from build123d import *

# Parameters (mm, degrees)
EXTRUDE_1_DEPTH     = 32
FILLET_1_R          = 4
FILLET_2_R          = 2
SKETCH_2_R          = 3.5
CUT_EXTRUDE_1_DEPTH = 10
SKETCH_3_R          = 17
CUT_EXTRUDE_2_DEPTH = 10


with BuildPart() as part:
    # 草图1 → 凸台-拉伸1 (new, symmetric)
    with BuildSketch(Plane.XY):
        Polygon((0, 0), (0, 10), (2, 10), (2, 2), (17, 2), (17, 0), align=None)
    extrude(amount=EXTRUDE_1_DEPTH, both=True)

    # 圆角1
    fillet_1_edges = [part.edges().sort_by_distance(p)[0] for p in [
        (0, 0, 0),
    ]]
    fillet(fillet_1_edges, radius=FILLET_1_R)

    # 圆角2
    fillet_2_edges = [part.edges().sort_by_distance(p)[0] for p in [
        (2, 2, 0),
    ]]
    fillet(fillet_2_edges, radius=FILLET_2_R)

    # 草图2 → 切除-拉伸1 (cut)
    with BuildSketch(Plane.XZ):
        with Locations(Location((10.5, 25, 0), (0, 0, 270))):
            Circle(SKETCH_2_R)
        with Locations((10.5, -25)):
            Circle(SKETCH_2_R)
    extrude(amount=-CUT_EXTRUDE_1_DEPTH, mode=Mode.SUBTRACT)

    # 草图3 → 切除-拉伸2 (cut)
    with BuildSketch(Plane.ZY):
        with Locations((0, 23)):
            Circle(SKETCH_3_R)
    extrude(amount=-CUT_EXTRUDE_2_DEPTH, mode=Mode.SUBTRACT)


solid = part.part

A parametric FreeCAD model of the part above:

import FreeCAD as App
import Part
import Sketcher
from FreeCAD import Vector


def edges_at(feature, points):
    """Names of the edges that pass closest to the given points."""
    edges = feature.Shape.Edges
    near = lambda p: min(range(len(edges)), key=lambda i: edges[i].distToShape(Part.Vertex(*p))[0])
    return sorted({f"Edge{near(p) + 1}" for p in points})

doc = App.newDocument("Part")
body = doc.addObject("PartDesign::Body", "Body")

sketch1 = doc.addObject("Sketcher::SketchObject", "Sketch")
body.addObject(sketch1)
sketch1.AttachmentSupport = (doc.XY_Plane, [""])
sketch1.MapMode = "FlatFace"
sketch1.addGeometry([
    Part.LineSegment(Vector(0, 10, 0), Vector(0, 0, 0)),
    Part.LineSegment(Vector(0, 0, 0), Vector(17, 0, 0)),
    Part.LineSegment(Vector(17, 0, 0), Vector(17, 2, 0)),
    Part.LineSegment(Vector(17, 2, 0), Vector(2, 2, 0)),
    Part.LineSegment(Vector(2, 2, 0), Vector(2, 10, 0)),
    Part.LineSegment(Vector(2, 10, 0), Vector(0, 10, 0)),
], False)
sketch1.addConstraint([
    Sketcher.Constraint("Coincident", 0, 2, 1, 1),
    Sketcher.Constraint("Coincident", 1, 2, 2, 1),
    Sketcher.Constraint("Coincident", 2, 2, 3, 1),
    Sketcher.Constraint("Coincident", 3, 2, 4, 1),
    Sketcher.Constraint("Coincident", 4, 2, 5, 1),
    Sketcher.Constraint("Coincident", 5, 2, 0, 1),
    Sketcher.Constraint("Vertical", 0),
    Sketcher.Constraint("Horizontal", 1),
    Sketcher.Constraint("Vertical", 2),
    Sketcher.Constraint("Horizontal", 3),
    Sketcher.Constraint("Vertical", 4),
    Sketcher.Constraint("Horizontal", 5),
    Sketcher.Constraint("Coincident", 0, 2, -1, 1),
    Sketcher.Constraint("Equal", 5, 2),
    Sketcher.Constraint("DistanceX", 1, 1, 1, 2, 17.0),
    Sketcher.Constraint("DistanceX", 3, 2, 3, 1, 15.0),
    Sketcher.Constraint("DistanceY", 0, 2, 0, 1, 10.0),
])
pad1 = doc.addObject("PartDesign::Pad", "Pad")
body.addObject(pad1)
pad1.Profile = sketch1
pad1.Length = 64
pad1.Midplane = True
doc.recompute()

fillet = doc.addObject("PartDesign::Fillet", "Fillet")
body.addObject(fillet)
fillet.Base = (pad1, edges_at(pad1, [(0, 0, 0)]))
fillet.Radius = 4
doc.recompute()

fillet2 = doc.addObject("PartDesign::Fillet", "Fillet001")
body.addObject(fillet2)
fillet2.Base = (fillet, edges_at(fillet, [(2, 2, 0)]))
fillet2.Radius = 2

sketch2 = doc.addObject("Sketcher::SketchObject", "Sketch001")
body.addObject(sketch2)
sketch2.AttachmentSupport = (doc.XZ_Plane, [""])
sketch2.MapMode = "FlatFace"
sketch2.addGeometry([
    Part.Circle(Vector(10.5, 25, 0), Vector(0, 0, 1), 3.5),
    Part.Circle(Vector(10.5, -25, 0), Vector(0, 0, 1), 3.5),
], False)
sketch2.addConstraint([
    Sketcher.Constraint("Equal", 0, 1),
    Sketcher.Constraint("Symmetric", 0, 3, 1, 3, -1),
    Sketcher.Constraint("Diameter", 0, 7.0),
    Sketcher.Constraint("DistanceY", -1, 1, 0, 3, 25.0),
    Sketcher.Constraint("DistanceX", -1, 1, 0, 3, 10.5),
])
pocket1 = doc.addObject("PartDesign::Pocket", "Pocket")
body.addObject(pocket1)
pocket1.Profile = sketch2
pocket1.Length = 10

sketch3 = doc.addObject("Sketcher::SketchObject", "Sketch002")
body.addObject(sketch3)
sketch3.AttachmentSupport = (doc.YZ_Plane, [""])
sketch3.MapMode = "FlatFace"
sketch3.addGeometry(Part.Circle(Vector(23, 0, 0), Vector(0, 0, 1), 17), False)
sketch3.addConstraint([
    Sketcher.Constraint("PointOnObject", 0, 3, -1),
    Sketcher.Constraint("Diameter", 0, 34.0),
    Sketcher.Constraint("DistanceX", -1, 1, 0, 3, 23.0),
])
pocket2 = doc.addObject("PartDesign::Pocket", "Pocket001")
body.addObject(pocket2)
pocket2.Profile = sketch3
pocket2.Length = 10
pocket2.Reversed = True

doc.recompute()
